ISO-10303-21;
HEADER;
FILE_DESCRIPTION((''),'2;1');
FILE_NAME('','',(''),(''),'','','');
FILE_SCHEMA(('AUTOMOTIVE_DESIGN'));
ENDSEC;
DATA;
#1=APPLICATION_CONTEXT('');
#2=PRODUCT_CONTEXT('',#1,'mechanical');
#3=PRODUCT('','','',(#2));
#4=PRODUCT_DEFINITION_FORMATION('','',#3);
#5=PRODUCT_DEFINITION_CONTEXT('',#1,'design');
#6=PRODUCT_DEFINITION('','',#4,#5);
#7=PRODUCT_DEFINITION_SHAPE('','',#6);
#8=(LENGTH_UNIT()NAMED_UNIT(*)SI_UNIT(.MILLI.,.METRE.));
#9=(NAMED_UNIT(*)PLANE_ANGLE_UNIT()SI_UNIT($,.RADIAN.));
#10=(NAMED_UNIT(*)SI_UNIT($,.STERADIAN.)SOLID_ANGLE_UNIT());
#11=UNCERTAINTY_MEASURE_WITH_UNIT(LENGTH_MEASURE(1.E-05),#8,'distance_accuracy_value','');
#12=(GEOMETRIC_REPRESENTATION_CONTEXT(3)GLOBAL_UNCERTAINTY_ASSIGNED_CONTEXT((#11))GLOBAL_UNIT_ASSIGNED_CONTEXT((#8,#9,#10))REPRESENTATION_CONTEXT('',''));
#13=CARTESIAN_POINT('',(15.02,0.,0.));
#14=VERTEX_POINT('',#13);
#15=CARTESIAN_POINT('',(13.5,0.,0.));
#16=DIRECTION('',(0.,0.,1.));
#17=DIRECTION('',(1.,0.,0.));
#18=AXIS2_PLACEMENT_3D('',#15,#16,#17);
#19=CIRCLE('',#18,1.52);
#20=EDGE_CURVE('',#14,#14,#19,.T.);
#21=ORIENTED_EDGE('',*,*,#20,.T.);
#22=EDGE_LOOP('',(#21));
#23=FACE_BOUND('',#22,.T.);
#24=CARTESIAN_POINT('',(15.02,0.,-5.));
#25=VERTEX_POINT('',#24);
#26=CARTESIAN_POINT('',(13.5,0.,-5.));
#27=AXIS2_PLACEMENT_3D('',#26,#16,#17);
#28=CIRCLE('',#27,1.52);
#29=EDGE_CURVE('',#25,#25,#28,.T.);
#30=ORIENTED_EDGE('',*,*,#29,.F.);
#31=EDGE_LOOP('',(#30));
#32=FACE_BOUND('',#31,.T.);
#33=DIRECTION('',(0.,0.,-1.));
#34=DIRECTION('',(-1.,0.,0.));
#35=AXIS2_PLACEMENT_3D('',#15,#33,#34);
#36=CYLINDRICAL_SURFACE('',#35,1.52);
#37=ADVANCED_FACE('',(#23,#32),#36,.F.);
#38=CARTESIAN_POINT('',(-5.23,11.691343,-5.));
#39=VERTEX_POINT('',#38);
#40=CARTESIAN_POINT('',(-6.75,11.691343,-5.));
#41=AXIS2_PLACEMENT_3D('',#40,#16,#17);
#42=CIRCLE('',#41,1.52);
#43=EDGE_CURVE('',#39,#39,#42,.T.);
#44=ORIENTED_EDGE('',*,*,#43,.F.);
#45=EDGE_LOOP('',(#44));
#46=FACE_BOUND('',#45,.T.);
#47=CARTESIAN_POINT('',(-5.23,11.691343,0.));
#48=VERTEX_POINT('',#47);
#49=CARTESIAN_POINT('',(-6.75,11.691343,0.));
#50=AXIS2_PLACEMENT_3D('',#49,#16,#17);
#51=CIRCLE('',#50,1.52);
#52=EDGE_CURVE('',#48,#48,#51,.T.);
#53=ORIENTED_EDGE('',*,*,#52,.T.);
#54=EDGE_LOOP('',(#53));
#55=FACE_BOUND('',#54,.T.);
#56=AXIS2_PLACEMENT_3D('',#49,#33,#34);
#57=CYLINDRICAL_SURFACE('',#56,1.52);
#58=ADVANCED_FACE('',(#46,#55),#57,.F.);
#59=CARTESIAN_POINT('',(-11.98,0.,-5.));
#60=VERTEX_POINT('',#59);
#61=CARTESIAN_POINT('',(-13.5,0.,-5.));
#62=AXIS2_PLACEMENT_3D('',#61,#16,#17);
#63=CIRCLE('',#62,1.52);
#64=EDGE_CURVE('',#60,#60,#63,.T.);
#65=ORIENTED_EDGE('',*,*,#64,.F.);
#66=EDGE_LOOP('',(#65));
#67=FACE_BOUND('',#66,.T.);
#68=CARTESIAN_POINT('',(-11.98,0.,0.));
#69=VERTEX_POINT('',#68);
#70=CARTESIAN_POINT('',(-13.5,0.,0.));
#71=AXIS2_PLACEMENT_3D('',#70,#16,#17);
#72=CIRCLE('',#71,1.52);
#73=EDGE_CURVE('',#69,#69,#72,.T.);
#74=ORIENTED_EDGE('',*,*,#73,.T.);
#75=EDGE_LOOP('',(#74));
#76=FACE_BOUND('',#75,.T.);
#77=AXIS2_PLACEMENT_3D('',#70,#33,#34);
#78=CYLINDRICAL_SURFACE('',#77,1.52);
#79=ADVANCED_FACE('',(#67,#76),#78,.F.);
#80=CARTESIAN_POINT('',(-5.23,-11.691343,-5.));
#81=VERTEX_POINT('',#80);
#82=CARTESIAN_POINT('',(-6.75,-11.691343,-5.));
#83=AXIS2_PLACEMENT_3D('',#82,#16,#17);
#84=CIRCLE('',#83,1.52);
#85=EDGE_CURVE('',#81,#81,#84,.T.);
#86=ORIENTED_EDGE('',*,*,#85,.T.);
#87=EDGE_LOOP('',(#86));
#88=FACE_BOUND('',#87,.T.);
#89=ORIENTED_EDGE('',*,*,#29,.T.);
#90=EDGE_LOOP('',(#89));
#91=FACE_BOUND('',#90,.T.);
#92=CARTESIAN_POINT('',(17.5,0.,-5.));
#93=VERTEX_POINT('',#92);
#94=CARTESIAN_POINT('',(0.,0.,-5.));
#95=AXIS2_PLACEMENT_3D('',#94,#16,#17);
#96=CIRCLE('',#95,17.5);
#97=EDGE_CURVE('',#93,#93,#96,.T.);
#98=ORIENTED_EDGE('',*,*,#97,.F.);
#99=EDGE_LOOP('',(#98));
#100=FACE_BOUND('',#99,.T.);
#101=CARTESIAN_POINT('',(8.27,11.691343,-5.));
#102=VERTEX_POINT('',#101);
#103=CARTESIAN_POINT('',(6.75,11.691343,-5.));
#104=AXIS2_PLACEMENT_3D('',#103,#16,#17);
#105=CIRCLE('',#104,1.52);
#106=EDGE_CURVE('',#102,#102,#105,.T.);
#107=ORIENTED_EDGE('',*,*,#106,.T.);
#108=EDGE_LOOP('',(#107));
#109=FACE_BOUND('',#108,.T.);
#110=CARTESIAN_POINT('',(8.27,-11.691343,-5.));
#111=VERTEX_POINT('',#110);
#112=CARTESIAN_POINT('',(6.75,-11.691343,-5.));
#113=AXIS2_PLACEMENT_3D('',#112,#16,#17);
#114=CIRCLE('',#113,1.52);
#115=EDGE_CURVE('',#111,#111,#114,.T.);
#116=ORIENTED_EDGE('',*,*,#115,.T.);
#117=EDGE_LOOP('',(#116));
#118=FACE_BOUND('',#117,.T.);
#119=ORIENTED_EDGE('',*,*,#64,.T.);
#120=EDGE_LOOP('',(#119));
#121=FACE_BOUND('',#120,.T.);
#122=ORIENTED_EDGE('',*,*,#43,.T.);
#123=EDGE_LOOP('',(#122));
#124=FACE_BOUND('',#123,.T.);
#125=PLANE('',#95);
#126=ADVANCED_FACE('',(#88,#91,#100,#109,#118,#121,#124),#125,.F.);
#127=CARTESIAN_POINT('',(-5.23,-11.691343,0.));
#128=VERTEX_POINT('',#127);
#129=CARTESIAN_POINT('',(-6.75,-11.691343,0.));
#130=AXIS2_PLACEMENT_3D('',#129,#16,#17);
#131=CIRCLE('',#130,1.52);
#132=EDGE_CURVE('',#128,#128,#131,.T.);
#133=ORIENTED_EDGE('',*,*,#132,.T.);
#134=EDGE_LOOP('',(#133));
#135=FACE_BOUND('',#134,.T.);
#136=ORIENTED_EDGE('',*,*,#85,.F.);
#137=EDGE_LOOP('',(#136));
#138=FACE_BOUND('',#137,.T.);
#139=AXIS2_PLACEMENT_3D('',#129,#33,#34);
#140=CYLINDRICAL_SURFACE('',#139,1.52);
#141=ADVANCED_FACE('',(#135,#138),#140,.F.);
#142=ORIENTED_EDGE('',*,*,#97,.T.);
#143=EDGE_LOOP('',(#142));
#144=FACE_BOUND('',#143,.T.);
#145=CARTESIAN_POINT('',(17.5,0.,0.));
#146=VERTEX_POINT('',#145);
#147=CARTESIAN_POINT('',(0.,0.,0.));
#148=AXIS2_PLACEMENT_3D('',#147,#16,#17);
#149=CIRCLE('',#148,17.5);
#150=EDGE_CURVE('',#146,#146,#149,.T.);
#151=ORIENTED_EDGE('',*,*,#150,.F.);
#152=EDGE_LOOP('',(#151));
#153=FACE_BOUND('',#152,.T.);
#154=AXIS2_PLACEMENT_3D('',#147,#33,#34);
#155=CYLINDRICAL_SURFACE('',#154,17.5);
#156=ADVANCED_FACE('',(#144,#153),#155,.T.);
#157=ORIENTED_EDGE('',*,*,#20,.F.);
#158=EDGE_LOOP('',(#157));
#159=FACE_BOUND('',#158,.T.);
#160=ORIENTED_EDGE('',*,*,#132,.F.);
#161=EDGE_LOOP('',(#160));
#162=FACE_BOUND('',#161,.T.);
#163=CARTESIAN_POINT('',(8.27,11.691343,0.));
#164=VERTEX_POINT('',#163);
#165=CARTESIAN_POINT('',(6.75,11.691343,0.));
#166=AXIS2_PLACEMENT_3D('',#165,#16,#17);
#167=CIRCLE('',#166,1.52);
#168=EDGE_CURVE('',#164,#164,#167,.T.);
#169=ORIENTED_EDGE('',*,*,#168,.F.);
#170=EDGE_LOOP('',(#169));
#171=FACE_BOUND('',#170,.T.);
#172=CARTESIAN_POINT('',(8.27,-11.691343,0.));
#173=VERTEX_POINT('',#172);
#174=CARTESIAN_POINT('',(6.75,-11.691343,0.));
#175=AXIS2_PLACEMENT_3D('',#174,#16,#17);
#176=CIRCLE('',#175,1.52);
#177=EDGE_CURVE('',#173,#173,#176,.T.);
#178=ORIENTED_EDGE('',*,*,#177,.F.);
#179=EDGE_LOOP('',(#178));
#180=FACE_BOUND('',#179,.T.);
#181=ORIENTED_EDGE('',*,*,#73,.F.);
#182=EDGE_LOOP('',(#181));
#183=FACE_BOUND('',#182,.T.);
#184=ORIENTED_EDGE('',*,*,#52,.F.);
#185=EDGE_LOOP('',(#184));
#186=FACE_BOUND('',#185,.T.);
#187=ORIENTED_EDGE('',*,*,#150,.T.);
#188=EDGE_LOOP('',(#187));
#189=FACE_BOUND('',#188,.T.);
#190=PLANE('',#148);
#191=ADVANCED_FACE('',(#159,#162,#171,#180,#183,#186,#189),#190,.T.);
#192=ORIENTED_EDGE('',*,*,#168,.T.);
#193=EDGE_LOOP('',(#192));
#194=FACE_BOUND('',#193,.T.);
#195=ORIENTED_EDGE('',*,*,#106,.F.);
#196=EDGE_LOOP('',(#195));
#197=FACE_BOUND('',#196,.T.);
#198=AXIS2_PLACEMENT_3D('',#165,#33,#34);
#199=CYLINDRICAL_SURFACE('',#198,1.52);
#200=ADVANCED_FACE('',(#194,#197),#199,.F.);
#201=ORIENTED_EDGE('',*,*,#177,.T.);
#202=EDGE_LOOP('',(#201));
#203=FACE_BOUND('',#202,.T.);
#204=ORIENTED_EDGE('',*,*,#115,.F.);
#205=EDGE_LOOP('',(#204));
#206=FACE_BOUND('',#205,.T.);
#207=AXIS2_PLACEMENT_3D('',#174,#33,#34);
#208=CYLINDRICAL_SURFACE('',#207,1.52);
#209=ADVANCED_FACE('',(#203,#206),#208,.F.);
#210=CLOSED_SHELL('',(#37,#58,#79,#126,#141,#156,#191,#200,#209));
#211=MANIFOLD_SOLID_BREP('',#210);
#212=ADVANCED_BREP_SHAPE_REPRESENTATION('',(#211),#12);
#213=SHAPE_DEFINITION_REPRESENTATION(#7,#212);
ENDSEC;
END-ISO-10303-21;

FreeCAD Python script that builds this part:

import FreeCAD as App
import Part
import Sketcher

doc = App.newDocument("Part")
body = doc.addObject("PartDesign::Body", "Body")

sketch1 = body.newObject("Sketcher::SketchObject", "Sketch")
sketch1.AttachmentSupport = (doc.getObject("XY_Plane"), [""])
sketch1.MapMode = "FlatFace"
sketch1.AttachmentOffset = App.Placement(App.Vector(0, 0, -5), App.Rotation())
sketch1.addGeometry(Part.Circle(App.Vector(0, 0, 0), App.Vector(0, 0, 1), 17.5), False)
sketch1.addGeometry(Part.Circle(App.Vector(-6.8, -11.7, 0), App.Vector(0, 0, 1), 1.5), False)
sketch1.addGeometry(Part.Circle(App.Vector(6.8, -11.7, 0), App.Vector(0, 0, 1), 1.5), False)
sketch1.addGeometry(Part.Circle(App.Vector(-13.5, 0, 0), App.Vector(0, 0, 1), 1.5), False)
sketch1.addGeometry(Part.Circle(App.Vector(-6.8, 11.7, 0), App.Vector(0, 0, 1), 1.5), False)
sketch1.addGeometry(Part.Circle(App.Vector(13.5, 0, 0), App.Vector(0, 0, 1), 1.5), False)
sketch1.addGeometry(Part.Circle(App.Vector(6.8, 11.7, 0), App.Vector(0, 0, 1), 1.5), False)
sketch1.addConstraint(Sketcher.Constraint("Coincident", 0, 3, -1, 1))
sketch1.addConstraint(Sketcher.Constraint("Equal", 1, 2))
sketch1.addConstraint(Sketcher.Constraint("Equal", 2, 3))
sketch1.addConstraint(Sketcher.Constraint("Equal", 3, 4))
sketch1.addConstraint(Sketcher.Constraint("Equal", 4, 5))
sketch1.addConstraint(Sketcher.Constraint("Equal", 5, 6))
sketch1.addConstraint(Sketcher.Constraint("Symmetric", 2, 3, 4, 3, -1, 1))
sketch1.addConstraint(Sketcher.Constraint("Symmetric", 3, 3, 5, 3, -1, 1))
sketch1.addConstraint(Sketcher.Constraint("Symmetric", 1, 3, 6, 3, -1, 1))
sketch1.addConstraint(Sketcher.Constraint("Symmetric", 1, 3, 2, 3, -2))
sketch1.addConstraint(Sketcher.Constraint("PointOnObject", 3, 3, -1))
sketch1.addConstraint(Sketcher.Constraint("Diameter", 0, 35.0))
sketch1.addConstraint(Sketcher.Constraint("Diameter", 1, 3.04))
sketch1.addConstraint(Sketcher.Constraint("DistanceX", 3, 3, 5, 3, 27.0))
sketch1.addConstraint(Sketcher.Constraint("DistanceX", 1, 3, 2, 3, 13.5))
sketch1.addConstraint(Sketcher.Constraint("DistanceY", 1, 3, -1, 1, 11.691343))
pad1 = body.newObject("PartDesign::Pad", "Pad")
pad1.Profile = sketch1
pad1.Length = 5

doc.recompute()
